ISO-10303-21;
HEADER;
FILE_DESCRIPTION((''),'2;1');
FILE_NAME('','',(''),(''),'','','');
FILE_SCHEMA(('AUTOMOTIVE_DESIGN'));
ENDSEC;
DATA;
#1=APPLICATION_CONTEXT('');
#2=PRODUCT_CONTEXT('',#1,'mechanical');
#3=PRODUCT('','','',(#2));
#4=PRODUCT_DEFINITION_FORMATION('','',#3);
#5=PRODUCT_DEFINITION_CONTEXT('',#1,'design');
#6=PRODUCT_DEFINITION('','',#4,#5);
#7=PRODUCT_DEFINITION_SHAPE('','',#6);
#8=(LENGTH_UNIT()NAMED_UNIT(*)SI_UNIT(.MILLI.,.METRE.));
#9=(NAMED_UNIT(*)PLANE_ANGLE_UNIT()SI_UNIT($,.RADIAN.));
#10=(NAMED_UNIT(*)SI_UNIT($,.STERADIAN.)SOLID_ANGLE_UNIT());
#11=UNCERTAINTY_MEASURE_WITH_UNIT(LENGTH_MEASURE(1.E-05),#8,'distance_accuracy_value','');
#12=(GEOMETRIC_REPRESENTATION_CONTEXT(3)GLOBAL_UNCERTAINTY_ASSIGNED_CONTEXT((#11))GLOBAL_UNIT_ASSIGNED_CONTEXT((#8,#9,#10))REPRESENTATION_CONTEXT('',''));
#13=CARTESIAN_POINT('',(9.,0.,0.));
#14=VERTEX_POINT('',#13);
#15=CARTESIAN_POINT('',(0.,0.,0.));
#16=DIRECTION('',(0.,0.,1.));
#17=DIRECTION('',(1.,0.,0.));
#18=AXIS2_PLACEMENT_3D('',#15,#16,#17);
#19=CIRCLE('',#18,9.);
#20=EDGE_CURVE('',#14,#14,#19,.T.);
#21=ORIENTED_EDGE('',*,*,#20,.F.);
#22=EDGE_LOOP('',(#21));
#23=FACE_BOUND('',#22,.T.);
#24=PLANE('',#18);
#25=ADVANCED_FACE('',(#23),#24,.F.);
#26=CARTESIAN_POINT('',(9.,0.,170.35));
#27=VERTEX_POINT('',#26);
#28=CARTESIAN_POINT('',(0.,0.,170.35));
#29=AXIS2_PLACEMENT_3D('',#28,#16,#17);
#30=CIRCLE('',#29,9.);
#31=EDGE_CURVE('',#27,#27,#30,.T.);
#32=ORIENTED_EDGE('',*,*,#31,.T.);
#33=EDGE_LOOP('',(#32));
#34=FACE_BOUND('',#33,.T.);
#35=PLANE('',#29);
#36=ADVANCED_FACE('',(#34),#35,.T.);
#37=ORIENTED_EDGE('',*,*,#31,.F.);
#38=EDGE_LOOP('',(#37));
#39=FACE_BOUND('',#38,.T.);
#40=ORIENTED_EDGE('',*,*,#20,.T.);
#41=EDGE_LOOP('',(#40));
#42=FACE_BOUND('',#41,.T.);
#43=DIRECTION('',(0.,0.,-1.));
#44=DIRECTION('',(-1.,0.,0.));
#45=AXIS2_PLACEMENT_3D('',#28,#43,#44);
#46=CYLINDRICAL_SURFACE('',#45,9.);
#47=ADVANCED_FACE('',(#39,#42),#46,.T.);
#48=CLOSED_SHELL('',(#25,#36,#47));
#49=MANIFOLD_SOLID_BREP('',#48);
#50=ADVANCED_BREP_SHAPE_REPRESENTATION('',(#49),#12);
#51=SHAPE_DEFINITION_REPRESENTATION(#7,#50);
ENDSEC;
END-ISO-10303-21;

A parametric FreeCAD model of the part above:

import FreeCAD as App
import Part
import Sketcher

doc = App.newDocument("Part")
body = doc.addObject("PartDesign::Body", "Body")

sketch1 = doc.addObject("Sketcher::SketchObject", "Sketch")
body.addObject(sketch1)
sketch1.AttachmentSupport = (doc.XY_Plane, [""])
sketch1.MapMode = "FlatFace"
sketch1.addGeometry(Part.Circle(App.Vector(0, 0, 0), App.Vector(0, 0, 1), 9), False)
sketch1.addConstraint([
    Sketcher.Constraint("Coincident", 0, 3, -1, 1),
    Sketcher.Constraint("Diameter", 0, 18.0),
])
pad1 = doc.addObject("PartDesign::Pad", "Pad")
body.addObject(pad1)
pad1.Profile = sketch1
pad1.Length = 170.35

doc.recompute()
